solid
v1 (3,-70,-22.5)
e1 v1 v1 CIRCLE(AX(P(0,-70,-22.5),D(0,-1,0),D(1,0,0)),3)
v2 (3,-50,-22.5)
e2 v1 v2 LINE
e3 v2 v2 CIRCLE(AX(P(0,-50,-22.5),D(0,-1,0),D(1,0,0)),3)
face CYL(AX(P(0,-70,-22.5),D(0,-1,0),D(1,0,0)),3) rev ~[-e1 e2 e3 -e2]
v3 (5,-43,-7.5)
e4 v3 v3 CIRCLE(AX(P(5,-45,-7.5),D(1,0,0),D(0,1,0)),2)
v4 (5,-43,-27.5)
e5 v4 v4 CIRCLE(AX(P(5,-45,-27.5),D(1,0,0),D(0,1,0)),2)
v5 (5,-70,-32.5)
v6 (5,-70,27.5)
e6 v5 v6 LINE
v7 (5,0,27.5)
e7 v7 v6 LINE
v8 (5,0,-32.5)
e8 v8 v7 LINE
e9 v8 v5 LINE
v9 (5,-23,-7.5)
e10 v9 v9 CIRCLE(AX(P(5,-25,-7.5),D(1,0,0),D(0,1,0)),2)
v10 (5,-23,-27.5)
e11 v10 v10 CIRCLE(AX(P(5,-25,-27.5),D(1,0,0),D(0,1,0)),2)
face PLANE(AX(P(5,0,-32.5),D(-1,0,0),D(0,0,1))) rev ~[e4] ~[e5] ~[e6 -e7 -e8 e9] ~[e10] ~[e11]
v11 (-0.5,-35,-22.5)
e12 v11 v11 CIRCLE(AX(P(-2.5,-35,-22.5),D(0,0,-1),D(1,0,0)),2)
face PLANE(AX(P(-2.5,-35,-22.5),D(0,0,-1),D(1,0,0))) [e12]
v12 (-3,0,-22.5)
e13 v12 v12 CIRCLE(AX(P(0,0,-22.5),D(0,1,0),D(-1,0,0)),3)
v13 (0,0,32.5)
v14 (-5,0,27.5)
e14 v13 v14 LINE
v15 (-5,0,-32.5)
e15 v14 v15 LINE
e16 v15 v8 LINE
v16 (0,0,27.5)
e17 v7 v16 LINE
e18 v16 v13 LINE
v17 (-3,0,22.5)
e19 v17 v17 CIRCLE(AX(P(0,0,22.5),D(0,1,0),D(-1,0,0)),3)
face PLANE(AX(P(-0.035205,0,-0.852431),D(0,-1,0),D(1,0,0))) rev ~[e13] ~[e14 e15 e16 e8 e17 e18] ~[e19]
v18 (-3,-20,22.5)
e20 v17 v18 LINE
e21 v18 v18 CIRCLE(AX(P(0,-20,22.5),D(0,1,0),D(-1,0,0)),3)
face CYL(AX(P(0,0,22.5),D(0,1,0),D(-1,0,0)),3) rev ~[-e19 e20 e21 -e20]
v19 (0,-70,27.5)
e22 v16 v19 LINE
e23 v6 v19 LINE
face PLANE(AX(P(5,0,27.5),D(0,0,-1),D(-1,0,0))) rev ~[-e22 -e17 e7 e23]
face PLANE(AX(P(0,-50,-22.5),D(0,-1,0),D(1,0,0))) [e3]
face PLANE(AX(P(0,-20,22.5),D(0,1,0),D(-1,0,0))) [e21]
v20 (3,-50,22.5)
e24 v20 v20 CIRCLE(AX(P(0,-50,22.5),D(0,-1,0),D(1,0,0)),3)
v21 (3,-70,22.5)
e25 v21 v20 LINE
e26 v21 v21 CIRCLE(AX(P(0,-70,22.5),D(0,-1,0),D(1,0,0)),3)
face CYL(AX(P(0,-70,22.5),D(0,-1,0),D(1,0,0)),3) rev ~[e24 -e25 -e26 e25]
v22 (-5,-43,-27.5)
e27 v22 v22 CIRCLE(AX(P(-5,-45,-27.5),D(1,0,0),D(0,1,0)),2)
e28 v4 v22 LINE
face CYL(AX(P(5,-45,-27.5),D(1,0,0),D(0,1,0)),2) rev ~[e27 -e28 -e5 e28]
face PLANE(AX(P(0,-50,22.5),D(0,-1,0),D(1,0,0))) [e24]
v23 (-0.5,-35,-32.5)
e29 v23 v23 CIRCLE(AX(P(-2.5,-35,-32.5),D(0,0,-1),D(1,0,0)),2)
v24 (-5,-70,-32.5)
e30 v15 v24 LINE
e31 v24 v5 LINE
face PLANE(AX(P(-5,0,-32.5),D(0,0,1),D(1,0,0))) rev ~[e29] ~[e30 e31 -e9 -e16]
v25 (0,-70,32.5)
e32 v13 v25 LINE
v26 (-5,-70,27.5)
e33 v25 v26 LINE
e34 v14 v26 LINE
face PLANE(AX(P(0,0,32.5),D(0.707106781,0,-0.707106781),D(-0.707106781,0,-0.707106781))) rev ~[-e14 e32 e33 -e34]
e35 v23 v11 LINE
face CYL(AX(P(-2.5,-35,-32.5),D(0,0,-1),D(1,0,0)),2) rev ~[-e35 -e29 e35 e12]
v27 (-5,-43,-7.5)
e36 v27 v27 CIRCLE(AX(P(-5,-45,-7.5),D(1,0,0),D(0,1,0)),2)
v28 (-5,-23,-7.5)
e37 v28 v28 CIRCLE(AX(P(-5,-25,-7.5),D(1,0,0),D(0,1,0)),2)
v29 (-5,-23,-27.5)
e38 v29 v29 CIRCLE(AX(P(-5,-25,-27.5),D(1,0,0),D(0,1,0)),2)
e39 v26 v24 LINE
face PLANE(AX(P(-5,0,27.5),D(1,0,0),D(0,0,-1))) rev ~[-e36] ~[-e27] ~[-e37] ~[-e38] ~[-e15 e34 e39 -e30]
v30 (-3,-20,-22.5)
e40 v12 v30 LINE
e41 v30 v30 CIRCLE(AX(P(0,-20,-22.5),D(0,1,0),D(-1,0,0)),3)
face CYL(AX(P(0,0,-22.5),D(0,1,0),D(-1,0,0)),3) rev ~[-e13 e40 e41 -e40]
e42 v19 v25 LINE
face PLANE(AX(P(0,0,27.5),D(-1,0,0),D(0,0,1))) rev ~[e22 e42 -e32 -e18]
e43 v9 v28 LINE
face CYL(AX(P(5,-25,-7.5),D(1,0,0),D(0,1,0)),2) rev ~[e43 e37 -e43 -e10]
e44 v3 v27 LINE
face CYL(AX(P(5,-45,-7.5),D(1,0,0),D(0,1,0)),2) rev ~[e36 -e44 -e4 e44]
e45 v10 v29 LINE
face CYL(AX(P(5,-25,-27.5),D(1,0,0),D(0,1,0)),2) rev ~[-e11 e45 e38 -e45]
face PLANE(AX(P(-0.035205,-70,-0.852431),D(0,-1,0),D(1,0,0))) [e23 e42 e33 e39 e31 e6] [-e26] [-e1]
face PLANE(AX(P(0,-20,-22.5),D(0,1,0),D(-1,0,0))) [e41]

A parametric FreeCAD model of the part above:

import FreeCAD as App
import Part
import Sketcher
from FreeCAD import Vector
Q = App.Units.Quantity


def add_polygon(sketch, points):
    """Adds a closed chain of lines whose ends are joined by coincident constraints."""
    first, n = sketch.GeometryCount, len(points)
    for a, b in zip(points, points[1:] + points[:1]):
        sketch.addGeometry(Part.LineSegment(App.Vector(*a, 0), App.Vector(*b, 0)), False)
    for i in range(n):
        sketch.addConstraint(Sketcher.Constraint("Coincident", first + i, 2, first + (i + 1) % n, 1))

doc = App.newDocument("Part")
params = doc.addObject("Spreadsheet::Sheet", "Params")
for row, (alias, value) in enumerate([
    ("sketch1_width", "10 mm"),
    ("sketch1_height", "60 mm"),
    ("pad1_length", "70 mm"),
    ("sketch2_diameter", "4 mm"),
    ("pocket1_length", "25 mm"),
    ("sketch3_diameter", "6 mm"),
    ("pocket2_length", "20 mm"),
    ("sketch4_diameter", "6 mm"),
    ("pocket3_length", "20 mm"),
    ("sketch5_diameter", "6 mm"),
    ("pocket4_length", "20 mm"),
    ("sketch6_diameter", "6 mm"),
    ("pocket5_length", "20 mm"),
    ("sketch7_diameter", "4 mm"),
    ("pocket6_length", "10 mm"),
    ("sketch8_diameter", "4 mm"),
    ("pocket7_length", "25 mm"),
], start=1):
    params.set(f"A{row}", alias)
    params.set(f"B{row}", "=" + value)
    params.setAlias(f"B{row}", alias)

body = doc.addObject("PartDesign::Body", "Body")

# Sketch on XZ plane
sketch1 = body.newObject("Sketcher::SketchObject", "Sketch")
sketch1.AttachmentSupport = (doc.getObject("XZ_Plane"), [""])
sketch1.MapMode = "FlatFace"
add_polygon(sketch1, [(-5, 28), (-5, -32), (5, -32), (5, 28), (0, 28), (0, 32)])  # lines 0-5
sketch1.addConstraint(Sketcher.Constraint("Vertical", 0))
sketch1.addConstraint(Sketcher.Constraint("Horizontal", 1))
sketch1.addConstraint(Sketcher.Constraint("Vertical", 2))
sketch1.addConstraint(Sketcher.Constraint("Horizontal", 3))
sketch1.addConstraint(Sketcher.Constraint("Vertical", 4))
sketch1.addConstraint(Sketcher.Constraint("Symmetric", 2, 2, 5, 2, -2))
sketch1.addConstraint(Sketcher.Constraint("PointOnObject", 3, 2, -2))
sketch1.addConstraint(Sketcher.Constraint("Equal", 3, 4))
sketch1.addConstraint(Sketcher.Constraint("DistanceX", 1, 1, 1, 2, Q("10 mm")))
sketch1.addConstraint(Sketcher.Constraint("DistanceY", 0, 2, 0, 1, Q("60 mm")))
sketch1.addConstraint(Sketcher.Constraint("DistanceY", 0, 2, -1, 1, Q("32.5 mm")))
sketch1.setExpression("Constraints[14]", "Params.sketch1_width")
sketch1.setExpression("Constraints[15]", "Params.sketch1_height")
pad1 = body.newObject("PartDesign::Pad", "Pad")
pad1.Profile = sketch1
pad1.setExpression("Length", "Params.pad1_length")

# Sketch on YZ plane
sketch2 = body.newObject("Sketcher::SketchObject", "Sketch001")
sketch2.AttachmentSupport = (doc.getObject("YZ_Plane"), [""])
sketch2.MapMode = "FlatFace"
sketch2.AttachmentOffset = App.Placement(Vector(0, 0, 5), App.Rotation())
sketch2.addGeometry(Part.Circle(Vector(-45, -27.5, 0), Vector(0, 0, 1), 2), False)
sketch2.addGeometry(Part.Circle(Vector(-45, -7.5, 0), Vector(0, 0, 1), 2), False)
sketch2.addGeometry(Part.Circle(Vector(-25, -7.5, 0), Vector(0, 0, 1), 2), False)
sketch2.addGeometry(Part.Circle(Vector(-25, -27.5, 0), Vector(0, 0, 1), 2), False)
sketch2.addConstraint(Sketcher.Constraint("Equal", 0, 1))
sketch2.addConstraint(Sketcher.Constraint("Equal", 1, 2))
sketch2.addConstraint(Sketcher.Constraint("Equal", 2, 3))
sketch2.addConstraint(Sketcher.Constraint("Horizontal", 1, 3, 2, 3))
sketch2.addConstraint(Sketcher.Constraint("Horizontal", 0, 3, 3, 3))
sketch2.addConstraint(Sketcher.Constraint("Vertical", 0, 3, 1, 3))
sketch2.addConstraint(Sketcher.Constraint("Vertical", 2, 3, 3, 3))
sketch2.addConstraint(Sketcher.Constraint("Diameter", 0, Q("4 mm")))
sketch2.addConstraint(Sketcher.Constraint("DistanceX", 0, 3, -1, 1, Q("45 mm")))
sketch2.addConstraint(Sketcher.Constraint("DistanceX", 2, 3, -1, 1, Q("25 mm")))
sketch2.addConstraint(Sketcher.Constraint("DistanceY", 0, 3, 1, 3, Q("20 mm")))
sketch2.addConstraint(Sketcher.Constraint("DistanceY", 0, 3, -1, 1, Q("27.5 mm")))
sketch2.setExpression("Constraints[7]", "Params.sketch2_diameter")
pocket1 = body.newObject("PartDesign::Pocket", "Pocket")
pocket1.Profile = sketch2
pocket1.setExpression("Length", "Params.pocket1_length")

# Sketch on XZ plane
sketch3 = body.newObject("Sketcher::SketchObject", "Sketch002")
sketch3.AttachmentSupport = (doc.getObject("XZ_Plane"), [""])
sketch3.MapMode = "FlatFace"
sketch3.addGeometry(Part.Circle(Vector(0, -22.5, 0), Vector(0, 0, 1), 3), False)
sketch3.addConstraint(Sketcher.Constraint("PointOnObject", 0, 3, -2))
sketch3.addConstraint(Sketcher.Constraint("Diameter", 0, Q("6 mm")))
sketch3.addConstraint(Sketcher.Constraint("DistanceY", 0, 3, -1, 1, Q("22.5 mm")))
sketch3.setExpression("Constraints[1]", "Params.sketch3_diameter")
pocket2 = body.newObject("PartDesign::Pocket", "Pocket001")
pocket2.Profile = sketch3
pocket2.setExpression("Length", "Params.pocket2_length")
pocket2.Reversed = True

# Sketch on XZ plane
sketch4 = body.newObject("Sketcher::SketchObject", "Sketch003")
sketch4.AttachmentSupport = (doc.getObject("XZ_Plane"), [""])
sketch4.MapMode = "FlatFace"
sketch4.AttachmentOffset = App.Placement(Vector(0, 0, 70), App.Rotation())
sketch4.addGeometry(Part.Circle(Vector(0, 22.5, 0), Vector(0, 0, 1), 3), False)
sketch4.addConstraint(Sketcher.Constraint("PointOnObject", 0, 3, -2))
sketch4.addConstraint(Sketcher.Constraint("Diameter", 0, Q("6 mm")))
sketch4.addConstraint(Sketcher.Constraint("DistanceY", -1, 1, 0, 3, Q("22.5 mm")))
sketch4.setExpression("Constraints[1]", "Params.sketch4_diameter")
pocket3 = body.newObject("PartDesign::Pocket", "Pocket002")
pocket3.Profile = sketch4
pocket3.setExpression("Length", "Params.pocket3_length")

# Sketch on XZ plane
sketch5 = body.newObject("Sketcher::SketchObject", "Sketch004")
sketch5.AttachmentSupport = (doc.getObject("XZ_Plane"), [""])
sketch5.MapMode = "FlatFace"
sketch5.AttachmentOffset = App.Placement(Vector(0, 0, 70), App.Rotation())
sketch5.addGeometry(Part.Circle(Vector(0, -22.5, 0), Vector(0, 0, 1), 3), False)
sketch5.addConstraint(Sketcher.Constraint("PointOnObject", 0, 3, -2))
sketch5.addConstraint(Sketcher.Constraint("Diameter", 0, Q("6 mm")))
sketch5.addConstraint(Sketcher.Constraint("DistanceY", 0, 3, -1, 1, Q("22.5 mm")))
sketch5.setExpression("Constraints[1]", "Params.sketch5_diameter")
pocket4 = body.newObject("PartDesign::Pocket", "Pocket003")
pocket4.Profile = sketch5
pocket4.setExpression("Length", "Params.pocket4_length")

# Sketch on XZ plane
sketch6 = body.newObject("Sketcher::SketchObject", "Sketch005")
sketch6.AttachmentSupport = (doc.getObject("XZ_Plane"), [""])
sketch6.MapMode = "FlatFace"
sketch6.addGeometry(Part.Circle(Vector(0, 22.5, 0), Vector(0, 0, 1), 3), False)
sketch6.addConstraint(Sketcher.Constraint("PointOnObject", 0, 3, -2))
sketch6.addConstraint(Sketcher.Constraint("Diameter", 0, Q("6 mm")))
sketch6.addConstraint(Sketcher.Constraint("DistanceY", -1, 1, 0, 3, Q("22.5 mm")))
sketch6.setExpression("Constraints[1]", "Params.sketch6_diameter")
pocket5 = body.newObject("PartDesign::Pocket", "Pocket004")
pocket5.Profile = sketch6
pocket5.setExpression("Length", "Params.pocket5_length")
pocket5.Reversed = True

# Sketch on XY plane
sketch7 = body.newObject("Sketcher::SketchObject", "Sketch006")
sketch7.AttachmentSupport = (doc.getObject("XY_Plane"), [""])
sketch7.MapMode = "FlatFace"
sketch7.AttachmentOffset = App.Placement(Vector(0, 0, -32.5), App.Rotation())
sketch7.addGeometry(Part.Circle(Vector(-2.5, -35, 0), Vector(0, 0, 1), 2), False)
sketch7.addConstraint(Sketcher.Constraint("Diameter", 0, Q("4 mm")))
sketch7.addConstraint(Sketcher.Constraint("DistanceY", 0, 3, -1, 1, Q("35 mm")))
sketch7.addConstraint(Sketcher.Constraint("DistanceX", 0, 3, -1, 1, Q("2.5 mm")))
sketch7.setExpression("Constraints[0]", "Params.sketch7_diameter")
pocket6 = body.newObject("PartDesign::Pocket", "Pocket005")
pocket6.Profile = sketch7
pocket6.setExpression("Length", "Params.pocket6_length")
pocket6.Reversed = True

# Sketch on YZ plane
sketch8 = body.newObject("Sketcher::SketchObject", "Sketch007")
sketch8.AttachmentSupport = (doc.getObject("YZ_Plane"), [""])
sketch8.MapMode = "FlatFace"
sketch8.AttachmentOffset = App.Placement(Vector(0, 0, 5), App.Rotation())
sketch8.addGeometry(Part.Circle(Vector(-45, -27.5, 0), Vector(0, 0, 1), 2), False)
sketch8.addGeometry(Part.Circle(Vector(-45, -7.5, 0), Vector(0, 0, 1), 2), False)
sketch8.addGeometry(Part.Circle(Vector(-25, -7.5, 0), Vector(0, 0, 1), 2), False)
sketch8.addGeometry(Part.Circle(Vector(-25, -27.5, 0), Vector(0, 0, 1), 2), False)
sketch8.addConstraint(Sketcher.Constraint("Equal", 0, 1))
sketch8.addConstraint(Sketcher.Constraint("Equal", 1, 2))
sketch8.addConstraint(Sketcher.Constraint("Equal", 2, 3))
sketch8.addConstraint(Sketcher.Constraint("Horizontal", 1, 3, 2, 3))
sketch8.addConstraint(Sketcher.Constraint("Horizontal", 0, 3, 3, 3))
sketch8.addConstraint(Sketcher.Constraint("Vertical", 0, 3, 1, 3))
sketch8.addConstraint(Sketcher.Constraint("Vertical", 2, 3, 3, 3))
sketch8.addConstraint(Sketcher.Constraint("Diameter", 0, Q("4 mm")))
sketch8.addConstraint(Sketcher.Constraint("DistanceX", 0, 3, -1, 1, Q("45 mm")))
sketch8.addConstraint(Sketcher.Constraint("DistanceX", 2, 3, -1, 1, Q("25 mm")))
sketch8.addConstraint(Sketcher.Constraint("DistanceY", 0, 3, 1, 3, Q("20 mm")))
sketch8.addConstraint(Sketcher.Constraint("DistanceY", 0, 3, -1, 1, Q("27.5 mm")))
sketch8.setExpression("Constraints[7]", "Params.sketch8_diameter")
pocket7 = body.newObject("PartDesign::Pocket", "Pocket006")
pocket7.Profile = sketch8
pocket7.setExpression("Length", "Params.pocket7_length")

doc.recompute()
